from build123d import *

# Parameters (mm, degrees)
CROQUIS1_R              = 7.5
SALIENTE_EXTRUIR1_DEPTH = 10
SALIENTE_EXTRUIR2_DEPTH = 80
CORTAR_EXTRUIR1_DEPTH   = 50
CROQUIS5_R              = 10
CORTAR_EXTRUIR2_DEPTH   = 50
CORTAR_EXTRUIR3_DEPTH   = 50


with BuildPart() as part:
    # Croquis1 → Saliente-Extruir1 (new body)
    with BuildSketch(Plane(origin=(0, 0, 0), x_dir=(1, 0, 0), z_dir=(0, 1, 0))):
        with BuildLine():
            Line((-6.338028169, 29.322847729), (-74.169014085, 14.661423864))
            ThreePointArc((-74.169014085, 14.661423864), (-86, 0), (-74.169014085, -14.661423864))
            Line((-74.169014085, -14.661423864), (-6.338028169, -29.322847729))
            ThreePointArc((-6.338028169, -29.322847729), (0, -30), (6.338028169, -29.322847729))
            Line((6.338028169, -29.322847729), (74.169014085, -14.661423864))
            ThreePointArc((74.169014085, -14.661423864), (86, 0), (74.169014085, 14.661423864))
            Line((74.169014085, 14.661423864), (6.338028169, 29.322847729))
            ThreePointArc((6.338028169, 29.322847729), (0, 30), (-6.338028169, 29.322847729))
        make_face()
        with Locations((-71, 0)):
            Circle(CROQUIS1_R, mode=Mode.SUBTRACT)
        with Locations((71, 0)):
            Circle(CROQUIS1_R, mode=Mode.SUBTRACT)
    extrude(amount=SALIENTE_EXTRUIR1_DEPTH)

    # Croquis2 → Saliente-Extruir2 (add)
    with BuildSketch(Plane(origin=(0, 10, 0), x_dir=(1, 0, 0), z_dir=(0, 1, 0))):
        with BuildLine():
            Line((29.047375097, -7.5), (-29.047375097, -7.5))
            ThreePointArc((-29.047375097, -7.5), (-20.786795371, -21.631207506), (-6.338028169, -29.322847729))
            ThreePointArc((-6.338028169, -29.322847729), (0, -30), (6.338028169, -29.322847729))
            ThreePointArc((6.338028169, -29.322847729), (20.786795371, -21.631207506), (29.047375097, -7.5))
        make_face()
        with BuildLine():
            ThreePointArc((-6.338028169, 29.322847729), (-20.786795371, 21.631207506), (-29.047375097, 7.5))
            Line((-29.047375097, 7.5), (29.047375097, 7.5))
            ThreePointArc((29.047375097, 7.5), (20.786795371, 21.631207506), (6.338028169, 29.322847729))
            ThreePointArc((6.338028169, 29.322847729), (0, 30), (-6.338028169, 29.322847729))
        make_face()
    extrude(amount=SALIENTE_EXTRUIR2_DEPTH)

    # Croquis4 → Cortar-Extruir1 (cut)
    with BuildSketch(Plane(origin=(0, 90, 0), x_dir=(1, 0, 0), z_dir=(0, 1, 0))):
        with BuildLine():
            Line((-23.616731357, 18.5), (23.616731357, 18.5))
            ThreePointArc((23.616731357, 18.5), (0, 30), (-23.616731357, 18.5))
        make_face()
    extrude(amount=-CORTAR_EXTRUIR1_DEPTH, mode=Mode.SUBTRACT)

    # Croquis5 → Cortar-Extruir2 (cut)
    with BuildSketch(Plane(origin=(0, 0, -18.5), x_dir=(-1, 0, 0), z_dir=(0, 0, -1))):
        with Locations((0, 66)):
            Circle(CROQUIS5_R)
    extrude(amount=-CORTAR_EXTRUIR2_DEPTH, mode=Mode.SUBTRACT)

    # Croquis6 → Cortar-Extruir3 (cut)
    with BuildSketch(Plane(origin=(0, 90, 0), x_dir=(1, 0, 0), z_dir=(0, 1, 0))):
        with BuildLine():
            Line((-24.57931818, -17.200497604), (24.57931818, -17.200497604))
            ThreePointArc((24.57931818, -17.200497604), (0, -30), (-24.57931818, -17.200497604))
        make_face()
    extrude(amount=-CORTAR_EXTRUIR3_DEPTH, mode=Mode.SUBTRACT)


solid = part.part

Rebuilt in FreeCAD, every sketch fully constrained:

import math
import FreeCAD as App
import Part
import Sketcher
Q = App.Units.Quantity

doc = App.newDocument("Part")
params = doc.addObject("Spreadsheet::Sheet", "Params")
for row, (alias, value) in enumerate([
    ("sketch1_diameter", "15 mm"),
    ("sketch1_radius", "15 mm"),
    ("sketch1_radius2", "30 mm"),
    ("pad1_length", "10 mm"),
    ("sketch2_radius", "30 mm"),
    ("pad2_length", "80 mm"),
    ("sketch3_radius", "30 mm"),
    ("pocket1_length", "50 mm"),
    ("sketch4_diameter", "20 mm"),
    ("pocket2_length", "50 mm"),
    ("sketch5_radius", "30 mm"),
    ("pocket3_length", "50 mm"),
], start=1):
    params.set(f"A{row}", alias)
    params.set(f"B{row}", "=" + value)
    params.setAlias(f"B{row}", alias)

body = doc.addObject("PartDesign::Body", "Body")

# Sketch on XZ plane
sketch1 = body.newObject("Sketcher::SketchObject", "Sketch")
sketch1.AttachmentSupport = (doc.getObject("XZ_Plane"), [""])
sketch1.MapMode = "FlatFace"
sketch1.addGeometry([
    Part.LineSegment(App.Vector(-6.338028, -29.322848, 0), App.Vector(-74.169014, -14.661424, 0)),  # 0
    Part.ArcOfCircle(Part.Circle(App.Vector(-71, 0, 0), App.Vector(0, 0, 1), 15), math.radians(102.196648), math.radians(257.803352)),  # 1
    Part.LineSegment(App.Vector(-74.169014, 14.661424, 0), App.Vector(-6.338028, 29.322848, 0)),  # 2
    Part.ArcOfCircle(Part.Circle(App.Vector(0, 0, 0), App.Vector(0, 0, 1), 30), math.radians(77.803352), math.radians(102.196648)),  # 3
    Part.LineSegment(App.Vector(6.338028, 29.322848, 0), App.Vector(74.169014, 14.661424, 0)),  # 4
    Part.ArcOfCircle(Part.Circle(App.Vector(71, 0, 0), App.Vector(0, 0, 1), 15), math.radians(-77.803352), math.radians(77.803352)),  # 5
    Part.LineSegment(App.Vector(74.169014, -14.661424, 0), App.Vector(6.338028, -29.322848, 0)),  # 6
    Part.ArcOfCircle(Part.Circle(App.Vector(0, 0, 0), App.Vector(0, 0, 1), 30), math.radians(-102.196648), math.radians(-77.803352)),  # 7
    Part.Circle(App.Vector(-71, 0, 0), App.Vector(0, 0, 1), 7.5),  # 8
    Part.Circle(App.Vector(71, 0, 0), App.Vector(0, 0, 1), 7.5),  # 9
], False)
sketch1.addConstraint([
    Sketcher.Constraint("Tangent", 0, 2, 1, 2),
    Sketcher.Constraint("Tangent", 1, 1, 2, 1),
    Sketcher.Constraint("Tangent", 2, 2, 3, 2),
    Sketcher.Constraint("Tangent", 3, 1, 4, 1),
    Sketcher.Constraint("Tangent", 4, 2, 5, 2),
    Sketcher.Constraint("Tangent", 5, 1, 6, 1),
    Sketcher.Constraint("Tangent", 6, 2, 7, 2),
    Sketcher.Constraint("Tangent", 7, 1, 0, 1),
    Sketcher.Constraint("Coincident", 3, 3, -1, 1),
    Sketcher.Constraint("Coincident", 7, 3, -1, 1),
    Sketcher.Constraint("Coincident", 8, 3, 1, 3),
    Sketcher.Constraint("Coincident", 9, 3, 5, 3),
    Sketcher.Constraint("Equal", 1, 5),
    Sketcher.Constraint("Equal", 3, 7),
    Sketcher.Constraint("Equal", 8, 9),
    Sketcher.Constraint("Symmetric", 1, 3, 5, 3, -1, 1),
    Sketcher.Constraint("PointOnObject", 1, 3, -1),
    Sketcher.Constraint("Diameter", 8, Q("15 mm")),
    Sketcher.Constraint("Radius", 1, Q("15 mm")),
    Sketcher.Constraint("Radius", 3, Q("30 mm")),
    Sketcher.Constraint("DistanceX", 1, 3, -1, 1, Q("71 mm")),
])
sketch1.setExpression("Constraints[17]", "Params.sketch1_diameter")
sketch1.setExpression("Constraints[18]", "Params.sketch1_radius")
sketch1.setExpression("Constraints[19]", "Params.sketch1_radius2")
pad1 = body.newObject("PartDesign::Pad", "Pad")
pad1.Profile = sketch1
pad1.setExpression("Length", "Params.pad1_length")
pad1.Reversed = True

# Sketch on XZ plane
sketch2 = body.newObject("Sketcher::SketchObject", "Sketch001")
sketch2.AttachmentSupport = (doc.getObject("XZ_Plane"), [""])
sketch2.MapMode = "FlatFace"
sketch2.AttachmentOffset = App.Placement(App.Vector(0, 0, -10), App.Rotation())
sketch2.addGeometry([
    Part.LineSegment(App.Vector(29.047375, 7.5, 0), App.Vector(-29.047375, 7.5, 0)),  # 0
    Part.ArcOfCircle(Part.Circle(App.Vector(0, 0, 0), App.Vector(0, 0, 1), 30), math.radians(102.196648), math.radians(165.522488)),  # 1
    Part.ArcOfCircle(Part.Circle(App.Vector(0, 0, 0), App.Vector(0, 0, 1), 30), math.radians(77.803352), math.radians(102.196648)),  # 2
    Part.ArcOfCircle(Part.Circle(App.Vector(0, 0, 0), App.Vector(0, 0, 1), 30), math.radians(14.477512), math.radians(77.803352)),  # 3
    Part.ArcOfCircle(Part.Circle(App.Vector(0, 0, 0), App.Vector(0, 0, 1), 30), math.radians(-165.522488), math.radians(-102.196648)),  # 4
    Part.LineSegment(App.Vector(-29.047375, -7.5, 0), App.Vector(29.047375, -7.5, 0)),  # 5
    Part.ArcOfCircle(Part.Circle(App.Vector(0, 0, 0), App.Vector(0, 0, 1), 30), math.radians(-77.803352), math.radians(-14.477512)),  # 6
    Part.ArcOfCircle(Part.Circle(App.Vector(0, 0, 0), App.Vector(0, 0, 1), 30), math.radians(-102.196648), math.radians(-77.803352)),  # 7
], False)
sketch2.addConstraint([
    Sketcher.Constraint("Coincident", 0, 2, 1, 2),
    Sketcher.Constraint("Tangent", 1, 1, 2, 2),
    Sketcher.Constraint("Tangent", 2, 1, 3, 2),
    Sketcher.Constraint("Coincident", 3, 1, 0, 1),
    Sketcher.Constraint("Coincident", 4, 1, 5, 1),
    Sketcher.Constraint("Coincident", 5, 2, 6, 2),
    Sketcher.Constraint("Tangent", 6, 1, 7, 2),
    Sketcher.Constraint("Tangent", 7, 1, 4, 2),
    Sketcher.Constraint("Horizontal", 0),
    Sketcher.Constraint("Horizontal", 5),
    Sketcher.Constraint("Coincident", 1, 3, -1, 1),
    Sketcher.Constraint("Coincident", 3, 3, -1, 1),
    Sketcher.Constraint("Coincident", 4, 3, -1, 1),
    Sketcher.Constraint("Coincident", 6, 3, -1, 1),
    Sketcher.Constraint("Equal", 3, 4),
    Sketcher.Constraint("Horizontal", 1, 1, 2, 1),
    Sketcher.Constraint("Horizontal", 6, 1, 7, 1),
    Sketcher.Constraint("Vertical", 0, 2, 4, 1),
    Sketcher.Constraint("Vertical", 2, 1, 6, 1),
    Sketcher.Constraint("Radius", 1, Q("30 mm")),
    Sketcher.Constraint("DistanceY", 4, 1, 0, 2, Q("15 mm")),
    Sketcher.Constraint("DistanceX", 1, 1, -1, 1, Q("6.338028 mm")),
])
sketch2.setExpression("Constraints[19]", "Params.sketch2_radius")
pad2 = body.newObject("PartDesign::Pad", "Pad001")
pad2.Profile = sketch2
pad2.setExpression("Length", "Params.pad2_length")
pad2.Reversed = True

# Sketch on XZ plane
sketch3 = body.newObject("Sketcher::SketchObject", "Sketch002")
sketch3.AttachmentSupport = (doc.getObject("XZ_Plane"), [""])
sketch3.MapMode = "FlatFace"
sketch3.AttachmentOffset = App.Placement(App.Vector(0, 0, -90), App.Rotation())
sketch3.addGeometry([
    Part.LineSegment(App.Vector(-23.616731, -18.5, 0), App.Vector(23.616731, -18.5, 0)),
    Part.ArcOfCircle(Part.Circle(App.Vector(0, 0, 0), App.Vector(0, 0, 1), 30), math.radians(-141.926877), math.radians(-38.073123)),
], False)
sketch3.addConstraint([
    Sketcher.Constraint("Coincident", 0, 1, 1, 1),
    Sketcher.Constraint("Coincident", 1, 2, 0, 2),
    Sketcher.Constraint("Horizontal", 0),
    Sketcher.Constraint("Coincident", 1, 3, -1, 1),
    Sketcher.Constraint("Radius", 1, Q("30 mm")),
    Sketcher.Constraint("DistanceY", 0, 1, -1, 1, Q("18.5 mm")),
])
sketch3.setExpression("Constraints[4]", "Params.sketch3_radius")
pocket1 = body.newObject("PartDesign::Pocket", "Pocket")
pocket1.Profile = sketch3
pocket1.setExpression("Length", "Params.pocket1_length")
pocket1.Reversed = True

# Sketch on XY plane
sketch4 = body.newObject("Sketcher::SketchObject", "Sketch003")
sketch4.AttachmentSupport = (doc.getObject("XY_Plane"), [""])
sketch4.MapMode = "FlatFace"
sketch4.AttachmentOffset = App.Placement(App.Vector(0, 0, -18.5), App.Rotation())
sketch4.addGeometry(Part.Circle(App.Vector(0, 66, 0), App.Vector(0, 0, 1), 10), False)
sketch4.addConstraint([
    Sketcher.Constraint("PointOnObject", 0, 3, -2),
    Sketcher.Constraint("Diameter", 0, Q("20 mm")),
    Sketcher.Constraint("DistanceY", -1, 1, 0, 3, Q("66 mm")),
])
sketch4.setExpression("Constraints[1]", "Params.sketch4_diameter")
pocket2 = body.newObject("PartDesign::Pocket", "Pocket001")
pocket2.Profile = sketch4
pocket2.setExpression("Length", "Params.pocket2_length")
pocket2.Reversed = True

# Sketch on XZ plane
sketch5 = body.newObject("Sketcher::SketchObject", "Sketch004")
sketch5.AttachmentSupport = (doc.getObject("XZ_Plane"), [""])
sketch5.MapMode = "FlatFace"
sketch5.AttachmentOffset = App.Placement(App.Vector(0, 0, -90), App.Rotation())
sketch5.addGeometry([
    Part.LineSegment(App.Vector(24.579318, 17.200498, 0), App.Vector(-24.579318, 17.200498, 0)),
    Part.ArcOfCircle(Part.Circle(App.Vector(0, 0, 0), App.Vector(0, 0, 1), 30), math.radians(34.984158), math.radians(145.015842)),
], False)
sketch5.addConstraint([
    Sketcher.Constraint("Coincident", 0, 1, 1, 1),
    Sketcher.Constraint("Coincident", 1, 2, 0, 2),
    Sketcher.Constraint("Horizontal", 0),
    Sketcher.Constraint("Coincident", 1, 3, -1, 1),
    Sketcher.Constraint("Radius", 1, Q("30 mm")),
    Sketcher.Constraint("DistanceX", 0, 2, 0, 1, Q("49.158636 mm")),
])
sketch5.setExpression("Constraints[4]", "Params.sketch5_radius")
pocket3 = body.newObject("PartDesign::Pocket", "Pocket002")
pocket3.Profile = sketch5
pocket3.setExpression("Length", "Params.pocket3_length")
pocket3.Reversed = True

doc.recompute()
